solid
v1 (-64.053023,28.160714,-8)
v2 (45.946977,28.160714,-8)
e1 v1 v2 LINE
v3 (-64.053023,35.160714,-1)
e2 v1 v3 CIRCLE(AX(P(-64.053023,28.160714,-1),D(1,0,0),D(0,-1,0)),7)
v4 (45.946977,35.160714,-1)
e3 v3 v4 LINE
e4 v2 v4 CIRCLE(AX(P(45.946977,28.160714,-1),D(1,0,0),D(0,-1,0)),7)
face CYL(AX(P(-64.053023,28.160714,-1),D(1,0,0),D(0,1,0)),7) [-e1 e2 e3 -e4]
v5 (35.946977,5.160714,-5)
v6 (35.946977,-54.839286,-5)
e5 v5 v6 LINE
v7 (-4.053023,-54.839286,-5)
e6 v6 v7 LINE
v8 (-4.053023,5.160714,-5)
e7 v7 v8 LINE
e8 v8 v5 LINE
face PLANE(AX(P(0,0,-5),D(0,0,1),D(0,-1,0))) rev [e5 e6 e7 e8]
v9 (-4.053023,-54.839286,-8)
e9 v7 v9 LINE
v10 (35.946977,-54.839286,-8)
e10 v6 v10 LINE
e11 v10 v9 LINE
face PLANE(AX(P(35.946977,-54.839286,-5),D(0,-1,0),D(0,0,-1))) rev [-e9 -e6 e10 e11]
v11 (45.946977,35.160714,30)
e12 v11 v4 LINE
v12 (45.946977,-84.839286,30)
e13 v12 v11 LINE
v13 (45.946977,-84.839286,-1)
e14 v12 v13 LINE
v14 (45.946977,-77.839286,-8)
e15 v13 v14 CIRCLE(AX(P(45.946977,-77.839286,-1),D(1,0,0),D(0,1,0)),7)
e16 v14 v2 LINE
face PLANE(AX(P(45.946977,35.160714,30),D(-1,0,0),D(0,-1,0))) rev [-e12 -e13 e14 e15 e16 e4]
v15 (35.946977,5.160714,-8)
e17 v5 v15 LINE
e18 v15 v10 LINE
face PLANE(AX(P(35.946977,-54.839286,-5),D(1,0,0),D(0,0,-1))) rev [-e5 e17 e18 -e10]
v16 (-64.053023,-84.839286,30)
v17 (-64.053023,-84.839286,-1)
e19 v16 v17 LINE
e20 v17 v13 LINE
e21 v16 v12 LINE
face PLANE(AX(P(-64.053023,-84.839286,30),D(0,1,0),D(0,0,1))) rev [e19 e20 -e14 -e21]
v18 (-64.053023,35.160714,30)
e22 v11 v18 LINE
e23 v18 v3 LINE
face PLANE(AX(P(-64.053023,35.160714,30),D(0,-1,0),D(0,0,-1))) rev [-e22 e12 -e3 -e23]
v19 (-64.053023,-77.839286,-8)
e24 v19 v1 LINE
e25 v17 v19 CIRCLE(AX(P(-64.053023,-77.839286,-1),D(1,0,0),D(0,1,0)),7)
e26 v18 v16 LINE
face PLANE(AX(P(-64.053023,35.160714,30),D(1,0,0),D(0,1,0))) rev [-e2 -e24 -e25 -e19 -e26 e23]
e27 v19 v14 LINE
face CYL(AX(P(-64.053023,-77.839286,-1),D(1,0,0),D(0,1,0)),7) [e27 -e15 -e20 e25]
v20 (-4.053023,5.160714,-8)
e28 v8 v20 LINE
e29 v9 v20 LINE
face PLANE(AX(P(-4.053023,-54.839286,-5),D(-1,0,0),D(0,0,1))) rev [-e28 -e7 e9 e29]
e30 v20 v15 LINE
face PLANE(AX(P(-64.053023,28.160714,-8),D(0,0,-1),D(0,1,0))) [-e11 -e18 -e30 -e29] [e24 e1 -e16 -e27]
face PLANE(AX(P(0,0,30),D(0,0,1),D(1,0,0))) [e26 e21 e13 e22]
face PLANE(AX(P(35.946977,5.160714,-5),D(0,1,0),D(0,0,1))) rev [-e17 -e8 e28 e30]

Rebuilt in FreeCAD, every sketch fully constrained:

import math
import FreeCAD as App
import Part
import Sketcher
from FreeCAD import Vector
Q = App.Units.Quantity

doc = App.newDocument("Part")
body = doc.addObject("PartDesign::Body", "Body")

# Sketch on XY plane
sketch1 = doc.addObject("Sketcher::SketchObject", "Sketch")
body.addObject(sketch1)
sketch1.AttachmentSupport = (doc.XY_Plane, [""])
sketch1.MapMode = "FlatFace"
sketch1.addGeometry(Part.LineSegment(Vector(-64, 35, 0), Vector(-64, -85, 0)), False)
sketch1.addGeometry(Part.LineSegment(Vector(-64, -85, 0), Vector(46, -85, 0)), False)
sketch1.addGeometry(Part.LineSegment(Vector(46, -85, 0), Vector(46, 35, 0)), False)
sketch1.addGeometry(Part.LineSegment(Vector(46, 35, 0), Vector(-64, 35, 0)), False)
sketch1.addConstraint(Sketcher.Constraint("Coincident", 0, 2, 1, 1))
sketch1.addConstraint(Sketcher.Constraint("Coincident", 1, 2, 2, 1))
sketch1.addConstraint(Sketcher.Constraint("Coincident", 2, 2, 3, 1))
sketch1.addConstraint(Sketcher.Constraint("Coincident", 3, 2, 0, 1))
sketch1.addConstraint(Sketcher.Constraint("Vertical", 0))
sketch1.addConstraint(Sketcher.Constraint("Horizontal", 1))
sketch1.addConstraint(Sketcher.Constraint("Vertical", 2))
sketch1.addConstraint(Sketcher.Constraint("Horizontal", 3))
sketch1.addConstraint(Sketcher.Constraint("DistanceX", 1, 1, 1, 2, Q("110 mm")))
sketch1.addConstraint(Sketcher.Constraint("DistanceY", 0, 2, 0, 1, Q("120 mm")))
sketch1.addConstraint(Sketcher.Constraint("DistanceX", 0, 2, -1, 1, Q("64.053023 mm")))
sketch1.addConstraint(Sketcher.Constraint("DistanceY", 0, 2, -1, 1, Q("84.839286 mm")))
pad1 = doc.addObject("PartDesign::Pad", "Pad")
body.addObject(pad1)
pad1.Profile = sketch1
pad1.Length = 30

# Sketch on YZ plane
sketch2 = doc.addObject("Sketcher::SketchObject", "Sketch001")
body.addObject(sketch2)
sketch2.AttachmentSupport = (doc.YZ_Plane, [""])
sketch2.MapMode = "FlatFace"
sketch2.AttachmentOffset = App.Placement(Vector(0, 0, 45.946977), App.Rotation())
sketch2.addGeometry(Part.LineSegment(Vector(35.2, -1, 0), Vector(35.2, 0, 0)), False)
sketch2.addGeometry(Part.LineSegment(Vector(35.2, 0, 0), Vector(-84.8, 0, 0)), False)
sketch2.addGeometry(Part.LineSegment(Vector(-84.8, 0, 0), Vector(-84.8, -1, 0)), False)
sketch2.addGeometry(Part.ArcOfCircle(Part.Circle(Vector(-77.8, -1, 0), Vector(0, 0, 1), 7), math.radians(180), math.radians(270)), False)
sketch2.addGeometry(Part.LineSegment(Vector(-77.8, -8, 0), Vector(28.2, -8, 0)), False)
sketch2.addGeometry(Part.ArcOfCircle(Part.Circle(Vector(28.2, -1, 0), Vector(0, 0, 1), 7), math.radians(-90), math.radians(0)), False)
sketch2.addConstraint(Sketcher.Constraint("Coincident", 0, 2, 1, 1))
sketch2.addConstraint(Sketcher.Constraint("Coincident", 1, 2, 2, 1))
sketch2.addConstraint(Sketcher.Constraint("Tangent", 2, 2, 3, 1))
sketch2.addConstraint(Sketcher.Constraint("Tangent", 3, 2, 4, 1))
sketch2.addConstraint(Sketcher.Constraint("Tangent", 4, 2, 5, 1))
sketch2.addConstraint(Sketcher.Constraint("Tangent", 5, 2, 0, 1))
sketch2.addConstraint(Sketcher.Constraint("Vertical", 0))
sketch2.addConstraint(Sketcher.Constraint("Horizontal", 1))
sketch2.addConstraint(Sketcher.Constraint("Vertical", 2))
sketch2.addConstraint(Sketcher.Constraint("Horizontal", 4))
sketch2.addConstraint(Sketcher.Constraint("Equal", 3, 5))
sketch2.addConstraint(Sketcher.Constraint("PointOnObject", 0, 2, -1))
sketch2.addConstraint(Sketcher.Constraint("Radius", 3, Q("7 mm")))
sketch2.addConstraint(Sketcher.Constraint("DistanceX", 1, 2, 1, 1, Q("120 mm")))
sketch2.addConstraint(Sketcher.Constraint("DistanceY", 0, 1, 0, 2, Q("1 mm")))
sketch2.addConstraint(Sketcher.Constraint("DistanceX", 3, 3, -1, 1, Q("77.839286 mm")))
pad2 = doc.addObject("PartDesign::Pad", "Pad001")
body.addObject(pad2)
pad2.Profile = sketch2
pad2.Length = 110
pad2.Reversed = True

# Sketch on XY plane
sketch3 = doc.addObject("Sketcher::SketchObject", "Sketch002")
body.addObject(sketch3)
sketch3.AttachmentSupport = (doc.XY_Plane, [""])
sketch3.MapMode = "FlatFace"
sketch3.AttachmentOffset = App.Placement(Vector(0, 0, -8), App.Rotation())
sketch3.addGeometry(Part.LineSegment(Vector(36, 5, 0), Vector(36, -55, 0)), False)
sketch3.addGeometry(Part.LineSegment(Vector(36, -55, 0), Vector(-4, -55, 0)), False)
sketch3.addGeometry(Part.LineSegment(Vector(-4, -55, 0), Vector(-4, 5, 0)), False)
sketch3.addGeometry(Part.LineSegment(Vector(-4, 5, 0), Vector(36, 5, 0)), False)
sketch3.addConstraint(Sketcher.Constraint("Coincident", 0, 2, 1, 1))
sketch3.addConstraint(Sketcher.Constraint("Coincident", 1, 2, 2, 1))
sketch3.addConstraint(Sketcher.Constraint("Coincident", 2, 2, 3, 1))
sketch3.addConstraint(Sketcher.Constraint("Coincident", 3, 2, 0, 1))
sketch3.addConstraint(Sketcher.Constraint("Vertical", 0))
sketch3.addConstraint(Sketcher.Constraint("Horizontal", 1))
sketch3.addConstraint(Sketcher.Constraint("Vertical", 2))
sketch3.addConstraint(Sketcher.Constraint("Horizontal", 3))
sketch3.addConstraint(Sketcher.Constraint("DistanceX", 1, 2, 1, 1, Q("40 mm")))
sketch3.addConstraint(Sketcher.Constraint("DistanceY", 0, 2, 0, 1, Q("60 mm")))
sketch3.addConstraint(Sketcher.Constraint("DistanceX", -1, 1, 0, 2, Q("35.946977 mm")))
sketch3.addConstraint(Sketcher.Constraint("DistanceY", 0, 2, -1, 1, Q("54.839286 mm")))
pocket1 = doc.addObject("PartDesign::Pocket", "Pocket")
body.addObject(pocket1)
pocket1.Profile = sketch3
pocket1.Length = 3
pocket1.Reversed = True

doc.recompute()
